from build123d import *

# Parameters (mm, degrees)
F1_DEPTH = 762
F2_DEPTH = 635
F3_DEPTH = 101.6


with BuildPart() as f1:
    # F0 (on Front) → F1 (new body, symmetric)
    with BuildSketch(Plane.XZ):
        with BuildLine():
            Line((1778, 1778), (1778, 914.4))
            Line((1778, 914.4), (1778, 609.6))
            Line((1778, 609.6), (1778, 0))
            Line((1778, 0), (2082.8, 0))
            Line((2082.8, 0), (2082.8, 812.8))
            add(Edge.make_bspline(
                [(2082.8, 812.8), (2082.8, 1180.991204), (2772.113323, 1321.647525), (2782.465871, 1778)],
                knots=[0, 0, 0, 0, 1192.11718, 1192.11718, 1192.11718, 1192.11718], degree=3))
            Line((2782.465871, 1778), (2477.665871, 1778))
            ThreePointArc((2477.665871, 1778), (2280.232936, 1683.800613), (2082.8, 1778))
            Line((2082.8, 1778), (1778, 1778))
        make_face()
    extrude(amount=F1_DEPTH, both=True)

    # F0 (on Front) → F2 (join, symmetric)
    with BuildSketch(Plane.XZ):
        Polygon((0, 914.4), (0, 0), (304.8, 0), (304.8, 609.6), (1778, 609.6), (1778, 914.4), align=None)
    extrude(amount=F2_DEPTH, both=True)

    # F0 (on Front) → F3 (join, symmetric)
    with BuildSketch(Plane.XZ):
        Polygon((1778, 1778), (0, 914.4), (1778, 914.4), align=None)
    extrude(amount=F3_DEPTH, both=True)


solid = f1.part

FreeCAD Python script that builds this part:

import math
import FreeCAD as App
import Part
import Sketcher
Q = App.Units.Quantity


def add_polygon(sketch, points):
    """Adds a closed chain of lines whose ends are joined by coincident constraints."""
    first, n = sketch.GeometryCount, len(points)
    for a, b in zip(points, points[1:] + points[:1]):
        sketch.addGeometry(Part.LineSegment(App.Vector(*a, 0), App.Vector(*b, 0)), False)
    for i in range(n):
        sketch.addConstraint(Sketcher.Constraint("Coincident", first + i, 2, first + (i + 1) % n, 1))

doc = App.newDocument("Part")
body = doc.addObject("PartDesign::Body", "Body")

# Sketch on XZ plane
sketch1 = body.newObject("Sketcher::SketchObject", "Sketch")
sketch1.AttachmentSupport = (doc.getObject("XZ_Plane"), [""])
sketch1.MapMode = "FlatFace"
sketch1.addGeometry([
    Part.LineSegment(App.Vector(1778, 1778, 0), App.Vector(1778, 0, 0)),  # 0
    Part.LineSegment(App.Vector(1778, 0, 0), App.Vector(2082.8, 0, 0)),  # 1
    Part.LineSegment(App.Vector(2082.8, 0, 0), App.Vector(2082.8, 812.8, 0)),  # 2
    Part.BSplineCurve([App.Vector(2082.8, 812.8, 0), App.Vector(2082.8, 1180.991204, 0), App.Vector(2772.113323, 1321.647525, 0), App.Vector(2782.465871, 1778, 0)], [4, 4], [0, 1192.11718], False, 3, [1, 1, 1, 1], False),  # 3
    Part.LineSegment(App.Vector(2782.465871, 1778, 0), App.Vector(2477.665871, 1778, 0)),  # 4
    Part.ArcOfCircle(Part.Circle(App.Vector(2280.232936, 1937.800613, 0), App.Vector(0, 0, 1), 254), math.radians(-141.013573), math.radians(-38.986427)),  # 5
    Part.LineSegment(App.Vector(2082.8, 1778, 0), App.Vector(1778, 1778, 0)),  # 6
], False)
sketch1.addConstraint([
    Sketcher.Constraint("Block", 3),
    Sketcher.Constraint("Coincident", 0, 2, 1, 1),
    Sketcher.Constraint("Coincident", 1, 2, 2, 1),
    Sketcher.Constraint("Coincident", 2, 2, 3, 1),
    Sketcher.Constraint("Coincident", 3, 2, 4, 1),
    Sketcher.Constraint("Coincident", 4, 2, 5, 2),
    Sketcher.Constraint("Coincident", 5, 1, 6, 1),
    Sketcher.Constraint("Coincident", 6, 2, 0, 1),
    Sketcher.Constraint("Vertical", 0),
    Sketcher.Constraint("Horizontal", 1),
    Sketcher.Constraint("Vertical", 2),
    Sketcher.Constraint("Horizontal", 4),
    Sketcher.Constraint("Horizontal", 6),
    Sketcher.Constraint("PointOnObject", 0, 2, -1),
    Sketcher.Constraint("Horizontal", 4, 2, 5, 1),
    Sketcher.Constraint("Vertical", 2, 2, 5, 1),
    Sketcher.Constraint("Equal", 1, 4),
    Sketcher.Constraint("Radius", 5, Q("10 in")),
    Sketcher.Constraint("DistanceX", 1, 1, 1, 2, Q("12 in")),
])
pad1 = body.newObject("PartDesign::Pad", "Pad")
pad1.Profile = sketch1
pad1.Length = Q("60 in")
pad1.Midplane = True

# Sketch on XZ plane
sketch2 = body.newObject("Sketcher::SketchObject", "Sketch001")
sketch2.AttachmentSupport = (doc.getObject("XZ_Plane"), [""])
sketch2.MapMode = "FlatFace"
add_polygon(sketch2, [(0, 914), (0, 0), (305, 0), (305, 610), (1778, 610), (1778, 914)])  # lines 0-5
sketch2.addConstraint([
    Sketcher.Constraint("Vertical", 0),
    Sketcher.Constraint("Horizontal", 1),
    Sketcher.Constraint("Vertical", 2),
    Sketcher.Constraint("Horizontal", 3),
    Sketcher.Constraint("Vertical", 4),
    Sketcher.Constraint("Horizontal", 5),
    Sketcher.Constraint("Coincident", 0, 2, -1, 1),
    Sketcher.Constraint("Equal", 1, 4),
    Sketcher.Constraint("DistanceX", 1, 1, 1, 2, Q("12 in")),
    Sketcher.Constraint("DistanceX", 3, 1, 3, 2, Q("58 in")),
    Sketcher.Constraint("DistanceY", 0, 2, 0, 1, Q("36 in")),
])
pad2 = body.newObject("PartDesign::Pad", "Pad001")
pad2.Profile = sketch2
pad2.Length = Q("50 in")
pad2.Midplane = True

# Sketch on XZ plane
sketch3 = body.newObject("Sketcher::SketchObject", "Sketch002")
sketch3.AttachmentSupport = (doc.getObject("XZ_Plane"), [""])
sketch3.MapMode = "FlatFace"
add_polygon(sketch3, [(1778, 1778), (0, 914), (1778, 914)])  # lines 0-2
sketch3.addConstraint([
    Sketcher.Constraint("Horizontal", 1),
    Sketcher.Constraint("Vertical", 2),
    Sketcher.Constraint("PointOnObject", 0, 2, -2),
    Sketcher.Constraint("DistanceX", 1, 1, 1, 2, Q("70 in")),
    Sketcher.Constraint("DistanceY", 2, 1, 2, 2, Q("34 in")),
    Sketcher.Constraint("DistanceY", -1, 1, 0, 2, Q("36 in")),
])
pad3 = body.newObject("PartDesign::Pad", "Pad002")
pad3.Profile = sketch3
pad3.Length = Q("8 in")
pad3.Midplane = True

doc.recompute()
